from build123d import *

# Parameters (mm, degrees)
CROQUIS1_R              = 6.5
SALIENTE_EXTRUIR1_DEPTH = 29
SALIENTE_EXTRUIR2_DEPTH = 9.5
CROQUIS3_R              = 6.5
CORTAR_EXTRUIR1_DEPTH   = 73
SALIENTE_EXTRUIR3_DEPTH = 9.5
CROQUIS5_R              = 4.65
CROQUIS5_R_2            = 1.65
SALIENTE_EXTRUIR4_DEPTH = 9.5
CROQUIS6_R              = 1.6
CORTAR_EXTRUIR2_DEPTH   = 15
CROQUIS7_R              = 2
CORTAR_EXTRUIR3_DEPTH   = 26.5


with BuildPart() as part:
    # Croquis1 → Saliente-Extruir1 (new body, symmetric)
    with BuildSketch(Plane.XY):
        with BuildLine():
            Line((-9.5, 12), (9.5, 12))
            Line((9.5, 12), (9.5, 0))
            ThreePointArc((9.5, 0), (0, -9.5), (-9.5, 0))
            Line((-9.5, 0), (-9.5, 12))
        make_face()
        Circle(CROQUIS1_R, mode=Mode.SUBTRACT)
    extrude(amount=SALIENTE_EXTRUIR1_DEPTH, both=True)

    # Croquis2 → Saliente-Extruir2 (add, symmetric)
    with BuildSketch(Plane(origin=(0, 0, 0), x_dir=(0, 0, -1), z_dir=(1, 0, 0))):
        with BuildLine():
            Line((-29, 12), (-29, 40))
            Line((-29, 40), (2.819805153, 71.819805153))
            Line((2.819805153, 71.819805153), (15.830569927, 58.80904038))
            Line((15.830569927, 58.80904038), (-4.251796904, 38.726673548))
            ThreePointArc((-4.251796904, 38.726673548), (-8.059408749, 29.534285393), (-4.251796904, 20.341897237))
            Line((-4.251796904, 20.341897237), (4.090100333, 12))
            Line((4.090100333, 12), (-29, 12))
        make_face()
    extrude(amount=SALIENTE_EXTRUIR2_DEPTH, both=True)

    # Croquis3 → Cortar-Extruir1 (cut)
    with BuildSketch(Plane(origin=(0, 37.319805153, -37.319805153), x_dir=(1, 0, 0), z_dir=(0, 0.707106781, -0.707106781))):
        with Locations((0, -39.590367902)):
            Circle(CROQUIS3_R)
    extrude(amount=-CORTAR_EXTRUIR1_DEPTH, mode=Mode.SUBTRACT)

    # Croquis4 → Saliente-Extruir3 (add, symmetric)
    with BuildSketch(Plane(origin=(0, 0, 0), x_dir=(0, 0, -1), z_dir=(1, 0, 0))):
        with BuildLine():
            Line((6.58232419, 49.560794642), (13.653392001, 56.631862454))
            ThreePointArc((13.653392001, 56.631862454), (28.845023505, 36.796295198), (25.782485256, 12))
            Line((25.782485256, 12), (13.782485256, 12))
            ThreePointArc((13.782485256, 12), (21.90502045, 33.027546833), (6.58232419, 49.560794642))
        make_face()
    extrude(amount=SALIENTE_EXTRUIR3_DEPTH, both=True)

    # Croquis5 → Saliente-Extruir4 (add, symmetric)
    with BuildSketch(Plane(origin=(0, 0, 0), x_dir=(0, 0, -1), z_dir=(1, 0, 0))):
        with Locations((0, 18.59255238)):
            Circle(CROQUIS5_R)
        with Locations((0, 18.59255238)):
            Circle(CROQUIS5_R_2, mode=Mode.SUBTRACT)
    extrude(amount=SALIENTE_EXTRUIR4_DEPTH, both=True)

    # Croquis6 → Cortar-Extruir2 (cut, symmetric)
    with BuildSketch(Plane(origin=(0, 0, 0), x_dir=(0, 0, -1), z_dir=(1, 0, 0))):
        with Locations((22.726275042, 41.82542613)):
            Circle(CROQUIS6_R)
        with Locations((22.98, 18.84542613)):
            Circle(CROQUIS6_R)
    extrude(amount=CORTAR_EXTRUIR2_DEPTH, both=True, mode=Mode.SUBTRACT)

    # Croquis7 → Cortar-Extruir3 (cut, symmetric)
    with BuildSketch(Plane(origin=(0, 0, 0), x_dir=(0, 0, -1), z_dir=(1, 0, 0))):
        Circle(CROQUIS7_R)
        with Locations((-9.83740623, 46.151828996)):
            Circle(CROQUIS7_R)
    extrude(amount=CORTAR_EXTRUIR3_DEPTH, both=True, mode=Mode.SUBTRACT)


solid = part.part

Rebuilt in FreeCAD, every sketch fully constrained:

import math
import FreeCAD as App
import Part
import Sketcher
Q = App.Units.Quantity

doc = App.newDocument("Part")
body = doc.addObject("PartDesign::Body", "Body")

sketch1 = body.newObject("Sketcher::SketchObject", "Sketch")
sketch1.AttachmentSupport = (doc.getObject("XY_Plane"), [""])
sketch1.MapMode = "FlatFace"
sketch1.addGeometry(Part.LineSegment(App.Vector(9.5, 12, 0), App.Vector(-9.5, 12, 0)), False)
sketch1.addGeometry(Part.LineSegment(App.Vector(-9.5, 12, 0), App.Vector(-9.5, 0, 0)), False)
sketch1.addGeometry(Part.ArcOfCircle(Part.Circle(App.Vector(0, 0, 0), App.Vector(0, 0, 1), 9.5), math.radians(180), math.radians(360)), False)
sketch1.addGeometry(Part.LineSegment(App.Vector(9.5, 0, 0), App.Vector(9.5, 12, 0)), False)
sketch1.addGeometry(Part.Circle(App.Vector(0, 0, 0), App.Vector(0, 0, 1), 6.5), False)
sketch1.addConstraint(Sketcher.Constraint("Coincident", 0, 2, 1, 1))
sketch1.addConstraint(Sketcher.Constraint("Tangent", 1, 2, 2, 1))
sketch1.addConstraint(Sketcher.Constraint("Tangent", 2, 2, 3, 1))
sketch1.addConstraint(Sketcher.Constraint("Coincident", 3, 2, 0, 1))
sketch1.addConstraint(Sketcher.Constraint("Horizontal", 0))
sketch1.addConstraint(Sketcher.Constraint("Vertical", 1))
sketch1.addConstraint(Sketcher.Constraint("Vertical", 3))
sketch1.addConstraint(Sketcher.Constraint("Coincident", 2, 3, -1, 1))
sketch1.addConstraint(Sketcher.Constraint("Coincident", 4, 3, -1, 1))
sketch1.addConstraint(Sketcher.Constraint("Diameter", 4, 13.0))
sketch1.addConstraint(Sketcher.Constraint("Radius", 2, 9.5))
sketch1.addConstraint(Sketcher.Constraint("DistanceY", 1, 2, 1, 1, 12.0))
pad1 = body.newObject("PartDesign::Pad", "Pad")
pad1.Profile = sketch1
pad1.Length = 58
pad1.Midplane = True

sketch2 = body.newObject("Sketcher::SketchObject", "Sketch001")
sketch2.AttachmentSupport = (doc.getObject("YZ_Plane"), [""])
sketch2.MapMode = "FlatFace"
sketch2.addGeometry(Part.LineSegment(App.Vector(40, 29, 0), App.Vector(12, 29, 0)), False)
sketch2.addGeometry(Part.LineSegment(App.Vector(12, 29, 0), App.Vector(12, -4.0901, 0)), False)
sketch2.addGeometry(Part.LineSegment(App.Vector(12, -4.0901, 0), App.Vector(20.341897, 4.251797, 0)), False)
sketch2.addGeometry(Part.ArcOfCircle(Part.Circle(App.Vector(29.534285, -4.940591, 0), App.Vector(0, 0, 1), 13), math.radians(45), math.radians(135)), False)
sketch2.addGeometry(Part.LineSegment(App.Vector(38.726674, 4.251797, 0), App.Vector(58.80904, -15.83057, 0)), False)
sketch2.addGeometry(Part.LineSegment(App.Vector(58.80904, -15.83057, 0), App.Vector(71.819805, -2.819805, 0)), False)
sketch2.addGeometry(Part.LineSegment(App.Vector(71.819805, -2.819805, 0), App.Vector(40, 29, 0)), False)
sketch2.addConstraint(Sketcher.Constraint("Coincident", 0, 2, 1, 1))
sketch2.addConstraint(Sketcher.Constraint("Coincident", 1, 2, 2, 1))
sketch2.addConstraint(Sketcher.Constraint("Tangent", 2, 2, 3, 2))
sketch2.addConstraint(Sketcher.Constraint("Tangent", 3, 1, 4, 1))
sketch2.addConstraint(Sketcher.Constraint("Coincident", 4, 2, 5, 1))
sketch2.addConstraint(Sketcher.Constraint("Coincident", 5, 2, 6, 1))
sketch2.addConstraint(Sketcher.Constraint("Coincident", 6, 2, 0, 1))
sketch2.addConstraint(Sketcher.Constraint("Horizontal", 0))
sketch2.addConstraint(Sketcher.Constraint("Vertical", 1))
sketch2.addConstraint(Sketcher.Constraint("Perpendicular", 2, 4))
sketch2.addConstraint(Sketcher.Constraint("Perpendicular", 4, 5))
sketch2.addConstraint(Sketcher.Constraint("Perpendicular", 5, 6))
sketch2.addConstraint(Sketcher.Constraint("Horizontal", 2, 2, 3, 1))
sketch2.addConstraint(Sketcher.Constraint("Radius", 3, 13.0))
sketch2.addConstraint(Sketcher.Constraint("DistanceX", 0, 2, 0, 1, 28.0))
sketch2.addConstraint(Sketcher.Constraint("Distance", 6, 45.0))
sketch2.addConstraint(Sketcher.Constraint("DistanceX", -1, 1, 0, 2, 12.0))
sketch2.addConstraint(Sketcher.Constraint("DistanceY", -1, 1, 0, 2, 29.0))
sketch2.addConstraint(Sketcher.Constraint("Distance", 5, 18.4))
sketch2.addConstraint(Sketcher.Constraint("DistanceY", 1, 2, 1, 1, 33.0901))
pad2 = body.newObject("PartDesign::Pad", "Pad001")
pad2.Profile = sketch2
pad2.Length = 19
pad2.Midplane = True

sketch3 = body.newObject("Sketcher::SketchObject", "Sketch002")
sketch3.Placement = App.Placement(App.Vector(0, 37.319805, -37.319805), App.Rotation(App.Vector(1, 0, 0), App.Vector(0, -0.707106781, -0.707106781), App.Vector(0, 0.707106781, -0.707106781), "ZXY"))
sketch3.addGeometry(Part.Circle(App.Vector(0, -39.590368, 0), App.Vector(0, 0, 1), 6.5), False)
sketch3.addConstraint(Sketcher.Constraint("PointOnObject", 0, 3, -2))
sketch3.addConstraint(Sketcher.Constraint("Diameter", 0, 13.0))
sketch3.addConstraint(Sketcher.Constraint("DistanceY", 0, 3, -1, 1, 39.590368))
pocket1 = body.newObject("PartDesign::Pocket", "Pocket")
pocket1.Profile = sketch3
pocket1.Length = 73

sketch4 = body.newObject("Sketcher::SketchObject", "Sketch003")
sketch4.AttachmentSupport = (doc.getObject("YZ_Plane"), [""])
sketch4.MapMode = "FlatFace"
sketch4.addGeometry(Part.LineSegment(App.Vector(56.631862, -13.653392, 0), App.Vector(49.560795, -6.582324, 0)), False)
sketch4.addGeometry(Part.ArcOfCircle(Part.Circle(App.Vector(29.02019, -1, 0), App.Vector(0, 0, 1), 21.285648), math.radians(-143.092756), math.radians(-15.204066)), False)
sketch4.addGeometry(Part.LineSegment(App.Vector(12, -13.782485, 0), App.Vector(12, -25.782485, 0)), False)
sketch4.addGeometry(Part.ArcOfCircle(Part.Circle(App.Vector(28.142136, 3, 0), App.Vector(0, 0, 1), 33), math.radians(-119.285098), math.radians(-30.308005)), False)
sketch4.addConstraint(Sketcher.Constraint("Coincident", 0, 2, 1, 2))
sketch4.addConstraint(Sketcher.Constraint("Coincident", 1, 1, 2, 1))
sketch4.addConstraint(Sketcher.Constraint("Coincident", 2, 2, 3, 1))
sketch4.addConstraint(Sketcher.Constraint("Coincident", 3, 2, 0, 1))
sketch4.addConstraint(Sketcher.Constraint("Vertical", 2))
sketch4.addConstraint(Sketcher.Constraint("Radius", 3, 33.0))
sketch4.addConstraint(Sketcher.Constraint("DistanceY", 2, 2, 2, 1, 12.0))
sketch4.addConstraint(Sketcher.Constraint("Angle", 0, Q("135 deg")))
sketch4.addConstraint(Sketcher.Constraint("Distance", 0, 10.0))
sketch4.addConstraint(Sketcher.Constraint("DistanceY", 1, 3, -1, 1, 1.0))
sketch4.addConstraint(Sketcher.Constraint("DistanceY", -1, 1, 3, 3, 3.0))
sketch4.addConstraint(Sketcher.Constraint("DistanceX", -1, 1, 1, 1, 12.0))
sketch4.addConstraint(Sketcher.Constraint("Radius", 1, 21.285648))
sketch4.addConstraint(Sketcher.Constraint("DistanceX", -1, 1, 1, 3, 29.02019))
pad3 = body.newObject("PartDesign::Pad", "Pad002")
pad3.Profile = sketch4
pad3.Length = 19
pad3.Midplane = True

sketch5 = body.newObject("Sketcher::SketchObject", "Sketch004")
sketch5.AttachmentSupport = (doc.getObject("YZ_Plane"), [""])
sketch5.MapMode = "FlatFace"
sketch5.addGeometry(Part.Circle(App.Vector(18.592552, 0, 0), App.Vector(0, 0, 1), 4.65), False)
sketch5.addGeometry(Part.Circle(App.Vector(18.592552, 0, 0), App.Vector(0, 0, 1), 1.65), False)
sketch5.addConstraint(Sketcher.Constraint("Coincident", 1, 3, 0, 3))
sketch5.addConstraint(Sketcher.Constraint("PointOnObject", 0, 3, -1))
sketch5.addConstraint(Sketcher.Constraint("Diameter", 0, 9.3))
sketch5.addConstraint(Sketcher.Constraint("Diameter", 1, 3.3))
sketch5.addConstraint(Sketcher.Constraint("DistanceX", -1, 1, 0, 3, 18.592552))
pad4 = body.newObject("PartDesign::Pad", "Pad003")
pad4.Profile = sketch5
pad4.Length = 19
pad4.Midplane = True

sketch6 = body.newObject("Sketcher::SketchObject", "Sketch005")
sketch6.AttachmentSupport = (doc.getObject("YZ_Plane"), [""])
sketch6.MapMode = "FlatFace"
sketch6.addGeometry(Part.Circle(App.Vector(41.825426, -22.726275, 0), App.Vector(0, 0, 1), 1.6), False)
sketch6.addGeometry(Part.Circle(App.Vector(18.845426, -22.98, 0), App.Vector(0, 0, 1), 1.6), False)
sketch6.addConstraint(Sketcher.Constraint("Equal", 0, 1))
sketch6.addConstraint(Sketcher.Constraint("Diameter", 0, 3.2))
sketch6.addConstraint(Sketcher.Constraint("DistanceY", 1, 3, -1, 1, 22.98))
sketch6.addConstraint(Sketcher.Constraint("DistanceX", 1, 3, 0, 3, 22.98))
sketch6.addConstraint(Sketcher.Constraint("DistanceX", -1, 1, 0, 3, 41.825426))
sketch6.addConstraint(Sketcher.Constraint("DistanceY", 0, 3, -1, 1, 22.726275))
pocket2 = body.newObject("PartDesign::Pocket", "Pocket001")
pocket2.Profile = sketch6
pocket2.Length = 30
pocket2.Midplane = True

sketch7 = body.newObject("Sketcher::SketchObject", "Sketch006")
sketch7.AttachmentSupport = (doc.getObject("YZ_Plane"), [""])
sketch7.MapMode = "FlatFace"
sketch7.addGeometry(Part.Circle(App.Vector(0, 0, 0), App.Vector(0, 0, 1), 2), False)
sketch7.addGeometry(Part.Circle(App.Vector(46.151829, 9.837406, 0), App.Vector(0, 0, 1), 2), False)
sketch7.addConstraint(Sketcher.Constraint("Coincident", 0, 3, -1, 1))
sketch7.addConstraint(Sketcher.Constraint("Equal", 0, 1))
sketch7.addConstraint(Sketcher.Constraint("Diameter", 0, 4.0))
sketch7.addConstraint(Sketcher.Constraint("DistanceX", -1, 1, 1, 3, 46.151829))
sketch7.addConstraint(Sketcher.Constraint("DistanceY", -1, 1, 1, 3, 9.837406))
pocket3 = body.newObject("PartDesign::Pocket", "Pocket002")
pocket3.Profile = sketch7
pocket3.Length = 53
pocket3.Midplane = True

doc.recompute()
